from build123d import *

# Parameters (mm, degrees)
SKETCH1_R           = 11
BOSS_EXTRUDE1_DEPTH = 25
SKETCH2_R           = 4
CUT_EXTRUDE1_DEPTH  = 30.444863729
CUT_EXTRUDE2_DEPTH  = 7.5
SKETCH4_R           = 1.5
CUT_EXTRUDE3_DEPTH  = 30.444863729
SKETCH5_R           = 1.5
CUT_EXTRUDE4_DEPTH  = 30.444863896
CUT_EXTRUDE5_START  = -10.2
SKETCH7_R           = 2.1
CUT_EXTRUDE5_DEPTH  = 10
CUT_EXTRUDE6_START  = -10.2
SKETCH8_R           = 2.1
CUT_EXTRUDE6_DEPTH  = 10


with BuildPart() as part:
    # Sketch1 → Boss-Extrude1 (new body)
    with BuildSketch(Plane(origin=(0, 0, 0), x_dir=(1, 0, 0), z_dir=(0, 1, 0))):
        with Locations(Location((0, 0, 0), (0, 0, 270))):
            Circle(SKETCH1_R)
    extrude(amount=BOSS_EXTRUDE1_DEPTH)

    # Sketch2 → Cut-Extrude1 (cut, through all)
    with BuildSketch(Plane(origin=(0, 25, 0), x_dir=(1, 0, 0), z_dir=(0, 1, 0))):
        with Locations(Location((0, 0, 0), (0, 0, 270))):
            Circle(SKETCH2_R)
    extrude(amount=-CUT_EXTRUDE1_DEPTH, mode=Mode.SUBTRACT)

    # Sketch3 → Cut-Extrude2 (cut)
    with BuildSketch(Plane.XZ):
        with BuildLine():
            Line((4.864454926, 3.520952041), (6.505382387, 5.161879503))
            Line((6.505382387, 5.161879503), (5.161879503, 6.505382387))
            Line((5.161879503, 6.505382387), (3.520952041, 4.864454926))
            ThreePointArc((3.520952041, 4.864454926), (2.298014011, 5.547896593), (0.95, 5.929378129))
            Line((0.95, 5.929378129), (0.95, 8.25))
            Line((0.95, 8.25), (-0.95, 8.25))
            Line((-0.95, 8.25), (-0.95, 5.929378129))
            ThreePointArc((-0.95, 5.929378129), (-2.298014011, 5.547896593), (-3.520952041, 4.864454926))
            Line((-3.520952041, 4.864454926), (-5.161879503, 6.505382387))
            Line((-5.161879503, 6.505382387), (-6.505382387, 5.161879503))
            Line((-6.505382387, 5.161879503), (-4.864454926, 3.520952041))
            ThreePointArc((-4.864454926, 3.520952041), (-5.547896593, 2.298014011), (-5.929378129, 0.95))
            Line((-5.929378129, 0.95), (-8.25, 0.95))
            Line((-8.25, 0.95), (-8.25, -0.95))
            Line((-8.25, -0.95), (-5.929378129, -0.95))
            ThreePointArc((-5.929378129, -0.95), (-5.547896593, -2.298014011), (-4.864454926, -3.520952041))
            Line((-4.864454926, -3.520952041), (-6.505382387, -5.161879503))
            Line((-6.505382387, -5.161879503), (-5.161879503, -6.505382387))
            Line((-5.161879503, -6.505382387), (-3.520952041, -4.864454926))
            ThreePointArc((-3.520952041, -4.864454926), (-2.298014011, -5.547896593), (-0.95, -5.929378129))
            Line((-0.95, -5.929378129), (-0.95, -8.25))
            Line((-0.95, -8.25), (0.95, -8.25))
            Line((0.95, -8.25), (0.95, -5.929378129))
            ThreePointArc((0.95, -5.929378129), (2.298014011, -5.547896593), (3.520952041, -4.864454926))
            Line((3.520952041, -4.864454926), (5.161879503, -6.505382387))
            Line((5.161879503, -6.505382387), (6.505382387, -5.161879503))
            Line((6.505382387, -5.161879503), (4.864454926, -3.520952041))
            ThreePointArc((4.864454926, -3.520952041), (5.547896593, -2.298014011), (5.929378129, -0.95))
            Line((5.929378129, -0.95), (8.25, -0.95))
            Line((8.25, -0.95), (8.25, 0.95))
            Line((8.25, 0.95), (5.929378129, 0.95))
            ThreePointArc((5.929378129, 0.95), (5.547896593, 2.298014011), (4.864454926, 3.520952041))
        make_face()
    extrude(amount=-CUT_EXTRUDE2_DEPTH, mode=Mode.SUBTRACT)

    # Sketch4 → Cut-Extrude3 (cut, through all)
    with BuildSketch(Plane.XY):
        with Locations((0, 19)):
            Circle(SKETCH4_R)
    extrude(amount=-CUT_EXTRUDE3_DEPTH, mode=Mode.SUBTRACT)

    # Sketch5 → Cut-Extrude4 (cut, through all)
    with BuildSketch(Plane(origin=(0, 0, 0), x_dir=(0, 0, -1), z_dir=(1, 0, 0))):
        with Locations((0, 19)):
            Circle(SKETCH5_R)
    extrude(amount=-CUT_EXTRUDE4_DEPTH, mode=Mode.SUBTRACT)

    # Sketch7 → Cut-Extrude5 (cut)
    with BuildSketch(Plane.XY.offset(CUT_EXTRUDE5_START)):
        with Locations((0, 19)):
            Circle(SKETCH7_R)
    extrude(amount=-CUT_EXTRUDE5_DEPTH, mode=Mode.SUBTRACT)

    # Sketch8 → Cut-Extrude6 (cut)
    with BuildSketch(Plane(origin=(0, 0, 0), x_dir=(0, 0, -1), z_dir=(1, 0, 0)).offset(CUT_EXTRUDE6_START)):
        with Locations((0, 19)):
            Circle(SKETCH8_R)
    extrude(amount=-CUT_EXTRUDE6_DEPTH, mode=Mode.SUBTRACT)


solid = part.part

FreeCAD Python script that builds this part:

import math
import FreeCAD as App
import Part
import Sketcher
from FreeCAD import Vector

doc = App.newDocument("Part")
params = doc.addObject("Spreadsheet::Sheet", "Params")
for row, (alias, value) in enumerate([
    ("sketch1_diameter", "22 mm"),
    ("pad1_length", "25 mm"),
    ("sketch2_diameter", "8 mm"),
    ("sketch3_width", "1.9 mm"),
    ("sketch3_length", "1.9 mm"),
    ("pocket2_length", "7.5 mm"),
    ("sketch4_diameter", "3 mm"),
    ("sketch5_diameter", "3 mm"),
    ("sketch6_diameter", "4.2 mm"),
    ("pocket5_length", "10 mm"),
    ("sketch7_diameter", "4.2 mm"),
    ("pocket6_length", "10 mm"),
], start=1):
    params.set(f"A{row}", alias)
    params.set(f"B{row}", "=" + value)
    params.setAlias(f"B{row}", alias)

body = doc.addObject("PartDesign::Body", "Body")

# Sketch on XZ plane
sketch1 = body.newObject("Sketcher::SketchObject", "Sketch")
sketch1.AttachmentSupport = (doc.getObject("XZ_Plane"), [""])
sketch1.MapMode = "FlatFace"
sketch1.addGeometry(Part.Circle(Vector(0, 0, 0), Vector(0, 0, 1), 11), False)
sketch1.addConstraint(Sketcher.Constraint("Coincident", 0, 3, -1, 1))
sketch1.addConstraint(Sketcher.Constraint("Diameter", 0, 22.0))
sketch1.setExpression("Constraints[1]", "Params.sketch1_diameter")
pad1 = body.newObject("PartDesign::Pad", "Pad")
pad1.Profile = sketch1
pad1.setExpression("Length", "Params.pad1_length")
pad1.Reversed = True

# Sketch on XZ plane
sketch2 = body.newObject("Sketcher::SketchObject", "Sketch001")
sketch2.AttachmentSupport = (doc.getObject("XZ_Plane"), [""])
sketch2.MapMode = "FlatFace"
sketch2.AttachmentOffset = App.Placement(Vector(0, 0, -25), App.Rotation())
sketch2.addGeometry(Part.Circle(Vector(0, 0, 0), Vector(0, 0, 1), 4), False)
sketch2.addConstraint(Sketcher.Constraint("Coincident", 0, 3, -1, 1))
sketch2.addConstraint(Sketcher.Constraint("Diameter", 0, 8.0))
sketch2.setExpression("Constraints[1]", "Params.sketch2_diameter")
pocket1 = body.newObject("PartDesign::Pocket", "Pocket")
pocket1.Profile = sketch2
pocket1.Type = "ThroughAll"
pocket1.Reversed = True

# Sketch on XZ plane
sketch3 = body.newObject("Sketcher::SketchObject", "Sketch002")
sketch3.AttachmentSupport = (doc.getObject("XZ_Plane"), [""])
sketch3.MapMode = "FlatFace"
sketch3.addGeometry(Part.LineSegment(Vector(4.864455, 3.520952, 0), Vector(6.505382, 5.16188, 0)), False)
sketch3.addGeometry(Part.LineSegment(Vector(6.505382, 5.16188, 0), Vector(5.16188, 6.505382, 0)), False)
sketch3.addGeometry(Part.LineSegment(Vector(5.16188, 6.505382, 0), Vector(3.520952, 4.864455, 0)), False)
sketch3.addGeometry(Part.ArcOfCircle(Part.Circle(Vector(0, 0, 0), Vector(0, 0, 1), 6.005), math.radians(54.10252), math.radians(80.89748)), False)
sketch3.addGeometry(Part.LineSegment(Vector(0.95, 5.929378, 0), Vector(0.95, 8.25, 0)), False)
sketch3.addGeometry(Part.LineSegment(Vector(0.95, 8.25, 0), Vector(-0.95, 8.25, 0)), False)
sketch3.addGeometry(Part.LineSegment(Vector(-0.95, 8.25, 0), Vector(-0.95, 5.929378, 0)), False)
sketch3.addGeometry(Part.ArcOfCircle(Part.Circle(Vector(0, 0, 0), Vector(0, 0, 1), 6.005), math.radians(99.10252), math.radians(125.89748)), False)
sketch3.addGeometry(Part.LineSegment(Vector(-3.520952, 4.864455, 0), Vector(-5.16188, 6.505382, 0)), False)
sketch3.addGeometry(Part.LineSegment(Vector(-5.16188, 6.505382, 0), Vector(-6.505382, 5.16188, 0)), False)
sketch3.addGeometry(Part.LineSegment(Vector(-6.505382, 5.16188, 0), Vector(-4.864455, 3.520952, 0)), False)
sketch3.addGeometry(Part.ArcOfCircle(Part.Circle(Vector(0, 0, 0), Vector(0, 0, 1), 6.005), math.radians(144.10252), math.radians(170.89748)), False)
sketch3.addGeometry(Part.LineSegment(Vector(-5.929378, 0.95, 0), Vector(-8.25, 0.95, 0)), False)
sketch3.addGeometry(Part.LineSegment(Vector(-8.25, 0.95, 0), Vector(-8.25, -0.95, 0)), False)
sketch3.addGeometry(Part.LineSegment(Vector(-8.25, -0.95, 0), Vector(-5.929378, -0.95, 0)), False)
sketch3.addGeometry(Part.ArcOfCircle(Part.Circle(Vector(0, 0, 0), Vector(0, 0, 1), 6.005), math.radians(-170.89748), math.radians(-144.10252)), False)
sketch3.addGeometry(Part.LineSegment(Vector(-4.864455, -3.520952, 0), Vector(-6.505382, -5.16188, 0)), False)
sketch3.addGeometry(Part.LineSegment(Vector(-6.505382, -5.16188, 0), Vector(-5.16188, -6.505382, 0)), False)
sketch3.addGeometry(Part.LineSegment(Vector(-5.16188, -6.505382, 0), Vector(-3.520952, -4.864455, 0)), False)
sketch3.addGeometry(Part.ArcOfCircle(Part.Circle(Vector(0, 0, 0), Vector(0, 0, 1), 6.005), math.radians(-125.89748), math.radians(-99.10252)), False)
sketch3.addGeometry(Part.LineSegment(Vector(-0.95, -5.929378, 0), Vector(-0.95, -8.25, 0)), False)
sketch3.addGeometry(Part.LineSegment(Vector(-0.95, -8.25, 0), Vector(0.95, -8.25, 0)), False)
sketch3.addGeometry(Part.LineSegment(Vector(0.95, -8.25, 0), Vector(0.95, -5.929378, 0)), False)
sketch3.addGeometry(Part.ArcOfCircle(Part.Circle(Vector(0, 0, 0), Vector(0, 0, 1), 6.005), math.radians(-80.89748), math.radians(-54.10252)), False)
sketch3.addGeometry(Part.LineSegment(Vector(3.520952, -4.864455, 0), Vector(5.16188, -6.505382, 0)), False)
sketch3.addGeometry(Part.LineSegment(Vector(5.16188, -6.505382, 0), Vector(6.505382, -5.16188, 0)), False)
sketch3.addGeometry(Part.LineSegment(Vector(6.505382, -5.16188, 0), Vector(4.864455, -3.520952, 0)), False)
sketch3.addGeometry(Part.ArcOfCircle(Part.Circle(Vector(0, 0, 0), Vector(0, 0, 1), 6.005), math.radians(-35.89748), math.radians(-9.10252)), False)
sketch3.addGeometry(Part.LineSegment(Vector(5.929378, -0.95, 0), Vector(8.25, -0.95, 0)), False)
sketch3.addGeometry(Part.LineSegment(Vector(8.25, -0.95, 0), Vector(8.25, 0.95, 0)), False)
sketch3.addGeometry(Part.LineSegment(Vector(8.25, 0.95, 0), Vector(5.929378, 0.95, 0)), False)
sketch3.addGeometry(Part.ArcOfCircle(Part.Circle(Vector(0, 0, 0), Vector(0, 0, 1), 6.005), math.radians(9.10252), math.radians(35.89748)), False)
sketch3.addConstraint(Sketcher.Constraint("Coincident", 0, 2, 1, 1))
sketch3.addConstraint(Sketcher.Constraint("Coincident", 1, 2, 2, 1))
sketch3.addConstraint(Sketcher.Constraint("Coincident", 2, 2, 3, 1))
sketch3.addConstraint(Sketcher.Constraint("Coincident", 3, 2, 4, 1))
sketch3.addConstraint(Sketcher.Constraint("Coincident", 4, 2, 5, 1))
sketch3.addConstraint(Sketcher.Constraint("Coincident", 5, 2, 6, 1))
sketch3.addConstraint(Sketcher.Constraint("Coincident", 6, 2, 7, 1))
sketch3.addConstraint(Sketcher.Constraint("Coincident", 7, 2, 8, 1))
sketch3.addConstraint(Sketcher.Constraint("Coincident", 8, 2, 9, 1))
sketch3.addConstraint(Sketcher.Constraint("Coincident", 9, 2, 10, 1))
sketch3.addConstraint(Sketcher.Constraint("Coincident", 10, 2, 11, 1))
sketch3.addConstraint(Sketcher.Constraint("Coincident", 11, 2, 12, 1))
sketch3.addConstraint(Sketcher.Constraint("Coincident", 12, 2, 13, 1))
sketch3.addConstraint(Sketcher.Constraint("Coincident", 13, 2, 14, 1))
sketch3.addConstraint(Sketcher.Constraint("Coincident", 14, 2, 15, 1))
sketch3.addConstraint(Sketcher.Constraint("Coincident", 15, 2, 16, 1))
sketch3.addConstraint(Sketcher.Constraint("Coincident", 16, 2, 17, 1))
sketch3.addConstraint(Sketcher.Constraint("Coincident", 17, 2, 18, 1))
sketch3.addConstraint(Sketcher.Constraint("Coincident", 18, 2, 19, 1))
sketch3.addConstraint(Sketcher.Constraint("Coincident", 19, 2, 20, 1))
sketch3.addConstraint(Sketcher.Constraint("Coincident", 20, 2, 21, 1))
sketch3.addConstraint(Sketcher.Constraint("Coincident", 21, 2, 22, 1))
sketch3.addConstraint(Sketcher.Constraint("Coincident", 22, 2, 23, 1))
sketch3.addConstraint(Sketcher.Constraint("Coincident", 23, 2, 24, 1))
sketch3.addConstraint(Sketcher.Constraint("Coincident", 24, 2, 25, 1))
sketch3.addConstraint(Sketcher.Constraint("Coincident", 25, 2, 26, 1))
sketch3.addConstraint(Sketcher.Constraint("Coincident", 26, 2, 27, 1))
sketch3.addConstraint(Sketcher.Constraint("Coincident", 27, 2, 28, 1))
sketch3.addConstraint(Sketcher.Constraint("Coincident", 28, 2, 29, 1))
sketch3.addConstraint(Sketcher.Constraint("Coincident", 29, 2, 30, 1))
sketch3.addConstraint(Sketcher.Constraint("Coincident", 30, 2, 31, 1))
sketch3.addConstraint(Sketcher.Constraint("Coincident", 31, 2, 0, 1))
sketch3.addConstraint(Sketcher.Constraint("Vertical", 4))
sketch3.addConstraint(Sketcher.Constraint("Horizontal", 5))
sketch3.addConstraint(Sketcher.Constraint("Vertical", 6))
sketch3.addConstraint(Sketcher.Constraint("Horizontal", 12))
sketch3.addConstraint(Sketcher.Constraint("Vertical", 13))
sketch3.addConstraint(Sketcher.Constraint("Horizontal", 14))
sketch3.addConstraint(Sketcher.Constraint("Vertical", 20))
sketch3.addConstraint(Sketcher.Constraint("Horizontal", 21))
sketch3.addConstraint(Sketcher.Constraint("Vertical", 22))
sketch3.addConstraint(Sketcher.Constraint("Horizontal", 28))
sketch3.addConstraint(Sketcher.Constraint("Vertical", 29))
sketch3.addConstraint(Sketcher.Constraint("Horizontal", 30))
sketch3.addConstraint(Sketcher.Constraint("Coincident", 3, 3, -1, 1))
sketch3.addConstraint(Sketcher.Constraint("Coincident", 7, 3, -1, 1))
sketch3.addConstraint(Sketcher.Constraint("Coincident", 11, 3, -1, 1))
sketch3.addConstraint(Sketcher.Constraint("Coincident", 15, 3, -1, 1))
sketch3.addConstraint(Sketcher.Constraint("Coincident", 19, 3, -1, 1))
sketch3.addConstraint(Sketcher.Constraint("Coincident", 23, 3, -1, 1))
sketch3.addConstraint(Sketcher.Constraint("Coincident", 27, 3, -1, 1))
sketch3.addConstraint(Sketcher.Constraint("Coincident", 31, 3, -1, 1))
sketch3.addConstraint(Sketcher.Constraint("Equal", 3, 7))
sketch3.addConstraint(Sketcher.Constraint("Equal", 7, 11))
sketch3.addConstraint(Sketcher.Constraint("Equal", 11, 15))
sketch3.addConstraint(Sketcher.Constraint("Equal", 15, 19))
sketch3.addConstraint(Sketcher.Constraint("Equal", 19, 23))
sketch3.addConstraint(Sketcher.Constraint("Equal", 23, 27))
sketch3.addConstraint(Sketcher.Constraint("Equal", 27, 31))
sketch3.addConstraint(Sketcher.Constraint("Symmetric", 0, 2, 16, 2, -1, 1))
sketch3.addConstraint(Sketcher.Constraint("Symmetric", 1, 2, 17, 2, -1, 1))
sketch3.addConstraint(Sketcher.Constraint("Symmetric", 4, 2, 20, 2, -1, 1))
sketch3.addConstraint(Sketcher.Constraint("Symmetric", 8, 2, 24, 2, -1, 1))
sketch3.addConstraint(Sketcher.Constraint("Symmetric", 9, 2, 25, 2, -1, 1))
sketch3.addConstraint(Sketcher.Constraint("Symmetric", 12, 2, 28, 2, -1, 1))
sketch3.addConstraint(Sketcher.Constraint("Symmetric", 1, 2, 8, 2, -2))
sketch3.addConstraint(Sketcher.Constraint("Symmetric", 0, 2, 9, 2, -2))
sketch3.addConstraint(Sketcher.Constraint("Perpendicular", 0, 1))
sketch3.addConstraint(Sketcher.Constraint("Perpendicular", 1, 2))
sketch3.addConstraint(Sketcher.Constraint("Perpendicular", 2, 8))
sketch3.addConstraint(Sketcher.Constraint("Perpendicular", 8, 9))
sketch3.addConstraint(Sketcher.Constraint("Perpendicular", 9, 10))
sketch3.addConstraint(Sketcher.Constraint("Perpendicular", 10, 16))
sketch3.addConstraint(Sketcher.Constraint("Perpendicular", 17, 18))
sketch3.addConstraint(Sketcher.Constraint("Perpendicular", 18, 24))
sketch3.addConstraint(Sketcher.Constraint("Perpendicular", 25, 26))
sketch3.addConstraint(Sketcher.Constraint("Horizontal", 3, 2, 6, 2))
sketch3.addConstraint(Sketcher.Constraint("Horizontal", 19, 2, 22, 2))
sketch3.addConstraint(Sketcher.Constraint("Horizontal", 14, 2, 27, 2))
sketch3.addConstraint(Sketcher.Constraint("Horizontal", 12, 2, 29, 2))
sketch3.addConstraint(Sketcher.Constraint("Equal", 30, 4))
sketch3.addConstraint(Sketcher.Constraint("Equal", 21, 13))
sketch3.addConstraint(Sketcher.Constraint("Equal", 0, 2))
sketch3.addConstraint(Sketcher.Constraint("DistanceX", 5, 2, 5, 1, 1.9))
sketch3.addConstraint(Sketcher.Constraint("Radius", 3, 6.005))
sketch3.addConstraint(Sketcher.Constraint("Distance", 1, 1.9))
sketch3.addConstraint(Sketcher.Constraint("DistanceY", -1, 1, 4, 2, 8.25))
sketch3.addConstraint(Sketcher.Constraint("DistanceY", 0, 2, 3, 2, 0.767499))
sketch3.setExpression("Constraints[83]", "Params.sketch3_width")
sketch3.setExpression("Constraints[85]", "Params.sketch3_length")
pocket2 = body.newObject("PartDesign::Pocket", "Pocket001")
pocket2.Profile = sketch3
pocket2.setExpression("Length", "Params.pocket2_length")

# Sketch on XY plane
sketch4 = body.newObject("Sketcher::SketchObject", "Sketch003")
sketch4.AttachmentSupport = (doc.getObject("XY_Plane"), [""])
sketch4.MapMode = "FlatFace"
sketch4.addGeometry(Part.Circle(Vector(0, 19, 0), Vector(0, 0, 1), 1.5), False)
sketch4.addConstraint(Sketcher.Constraint("PointOnObject", 0, 3, -2))
sketch4.addConstraint(Sketcher.Constraint("Diameter", 0, 3.0))
sketch4.addConstraint(Sketcher.Constraint("DistanceY", -1, 1, 0, 3, 19.0))
sketch4.setExpression("Constraints[1]", "Params.sketch4_diameter")
pocket3 = body.newObject("PartDesign::Pocket", "Pocket002")
pocket3.Profile = sketch4
pocket3.Type = "ThroughAll"

# Sketch on YZ plane
sketch5 = body.newObject("Sketcher::SketchObject", "Sketch004")
sketch5.AttachmentSupport = (doc.getObject("YZ_Plane"), [""])
sketch5.MapMode = "FlatFace"
sketch5.addGeometry(Part.Circle(Vector(19, 0, 0), Vector(0, 0, 1), 1.5), False)
sketch5.addConstraint(Sketcher.Constraint("PointOnObject", 0, 3, -1))
sketch5.addConstraint(Sketcher.Constraint("Diameter", 0, 3.0))
sketch5.addConstraint(Sketcher.Constraint("DistanceX", -1, 1, 0, 3, 19.0))
sketch5.setExpression("Constraints[1]", "Params.sketch5_diameter")
pocket4 = body.newObject("PartDesign::Pocket", "Pocket003")
pocket4.Profile = sketch5
pocket4.Type = "ThroughAll"

# Sketch on XY plane
sketch6 = body.newObject("Sketcher::SketchObject", "Sketch005")
sketch6.AttachmentSupport = (doc.getObject("XY_Plane"), [""])
sketch6.MapMode = "FlatFace"
sketch6.AttachmentOffset = App.Placement(Vector(0, 0, -10.2), App.Rotation())
sketch6.addGeometry(Part.Circle(Vector(0, 19, 0), Vector(0, 0, 1), 2.1), False)
sketch6.addConstraint(Sketcher.Constraint("PointOnObject", 0, 3, -2))
sketch6.addConstraint(Sketcher.Constraint("Diameter", 0, 4.2))
sketch6.addConstraint(Sketcher.Constraint("DistanceY", -1, 1, 0, 3, 19.0))
sketch6.setExpression("Constraints[1]", "Params.sketch6_diameter")
pocket5 = body.newObject("PartDesign::Pocket", "Pocket004")
pocket5.Profile = sketch6
pocket5.setExpression("Length", "Params.pocket5_length")

# Sketch on YZ plane
sketch7 = body.newObject("Sketcher::SketchObject", "Sketch006")
sketch7.AttachmentSupport = (doc.getObject("YZ_Plane"), [""])
sketch7.MapMode = "FlatFace"
sketch7.AttachmentOffset = App.Placement(Vector(0, 0, -10.2), App.Rotation())
sketch7.addGeometry(Part.Circle(Vector(19, 0, 0), Vector(0, 0, 1), 2.1), False)
sketch7.addConstraint(Sketcher.Constraint("PointOnObject", 0, 3, -1))
sketch7.addConstraint(Sketcher.Constraint("Diameter", 0, 4.2))
sketch7.addConstraint(Sketcher.Constraint("DistanceX", -1, 1, 0, 3, 19.0))
sketch7.setExpression("Constraints[1]", "Params.sketch7_diameter")
pocket6 = body.newObject("PartDesign::Pocket", "Pocket005")
pocket6.Profile = sketch7
pocket6.setExpression("Length", "Params.pocket6_length")

doc.recompute()
